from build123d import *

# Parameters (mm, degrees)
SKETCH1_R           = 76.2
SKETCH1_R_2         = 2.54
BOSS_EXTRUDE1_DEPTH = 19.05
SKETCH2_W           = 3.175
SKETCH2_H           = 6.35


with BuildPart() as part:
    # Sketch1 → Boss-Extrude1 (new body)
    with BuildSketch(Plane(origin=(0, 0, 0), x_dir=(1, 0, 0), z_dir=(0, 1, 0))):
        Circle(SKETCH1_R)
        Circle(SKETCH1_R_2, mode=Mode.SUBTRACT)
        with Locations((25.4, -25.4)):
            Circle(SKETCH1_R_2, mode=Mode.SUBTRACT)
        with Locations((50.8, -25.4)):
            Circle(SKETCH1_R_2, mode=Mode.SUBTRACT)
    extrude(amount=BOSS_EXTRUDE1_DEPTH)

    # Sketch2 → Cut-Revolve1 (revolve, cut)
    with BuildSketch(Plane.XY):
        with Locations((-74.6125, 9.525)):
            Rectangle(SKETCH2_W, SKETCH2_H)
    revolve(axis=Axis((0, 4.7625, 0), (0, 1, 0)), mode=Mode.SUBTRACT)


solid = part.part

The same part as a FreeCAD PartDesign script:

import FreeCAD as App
import Part
import Sketcher
from FreeCAD import Vector
Q = App.Units.Quantity


def add_polygon(sketch, points):
    """Adds a closed chain of lines whose ends are joined by coincident constraints."""
    first, n = sketch.GeometryCount, len(points)
    for a, b in zip(points, points[1:] + points[:1]):
        sketch.addGeometry(Part.LineSegment(App.Vector(*a, 0), App.Vector(*b, 0)), False)
    for i in range(n):
        sketch.addConstraint(Sketcher.Constraint("Coincident", first + i, 2, first + (i + 1) % n, 1))

doc = App.newDocument("Part")
params = doc.addObject("Spreadsheet::Sheet", "Params")
for row, (alias, value) in enumerate([
    ("sketch1_diameter", "6 in"),
    ("sketch1_diameter2", "0.2 in"),
    ("pad1_length", "0.75 in"),
    ("sketch2_height", "0.25 in"),
    ("sketch2_width", "0.125 in"),
    ("groove_angle", "360 deg"),
], start=1):
    params.set(f"A{row}", alias)
    params.set(f"B{row}", "=" + value)
    params.setAlias(f"B{row}", alias)

body = doc.addObject("PartDesign::Body", "Body")

sketch1 = doc.addObject("Sketcher::SketchObject", "Sketch")
body.addObject(sketch1)
sketch1.AttachmentSupport = (doc.XZ_Plane, [""])
sketch1.MapMode = "FlatFace"
sketch1.addGeometry([
    Part.Circle(Vector(0, 0, 0), Vector(0, 0, 1), 76.2),
    Part.Circle(Vector(25.4, 25.4, 0), Vector(0, 0, 1), 2.5),
    Part.Circle(Vector(50.8, 25.4, 0), Vector(0, 0, 1), 2.5),
    Part.Circle(Vector(0, 0, 0), Vector(0, 0, 1), 2.5),
], False)
sketch1.addConstraint([
    Sketcher.Constraint("Coincident", 0, 3, -1, 1),
    Sketcher.Constraint("Coincident", 3, 3, -1, 1),
    Sketcher.Constraint("Equal", 1, 2),
    Sketcher.Constraint("Equal", 2, 3),
    Sketcher.Constraint("Horizontal", 1, 3, 2, 3),
    Sketcher.Constraint("Diameter", 0, Q("6 in")),
    Sketcher.Constraint("Diameter", 1, Q("0.2 in")),
    Sketcher.Constraint("DistanceX", -1, 1, 1, 3, Q("1 in")),
    Sketcher.Constraint("DistanceY", -1, 1, 1, 3, Q("1 in")),
    Sketcher.Constraint("DistanceX", -1, 1, 2, 3, Q("2 in")),
])
sketch1.setExpression("Constraints[5]", "Params.sketch1_diameter")
sketch1.setExpression("Constraints[6]", "Params.sketch1_diameter2")
pad1 = doc.addObject("PartDesign::Pad", "Pad")
body.addObject(pad1)
pad1.Profile = sketch1
pad1.setExpression("Length", "Params.pad1_length")
pad1.Reversed = True

sketch2 = doc.addObject("Sketcher::SketchObject", "Sketch001")
body.addObject(sketch2)
sketch2.AttachmentSupport = (doc.XY_Plane, [""])
sketch2.MapMode = "FlatFace"
add_polygon(sketch2, [(-76.2, 12.7), (-76.2, 6.3), (-73, 6.3), (-73, 12.7)])
sketch2.addConstraint([
    Sketcher.Constraint("Vertical", 0),
    Sketcher.Constraint("Horizontal", 1),
    Sketcher.Constraint("Vertical", 2),
    Sketcher.Constraint("Horizontal", 3),
    Sketcher.Constraint("DistanceX", 0, 2, -1, 1, Q("3 in")),
    Sketcher.Constraint("DistanceY", 0, 2, 0, 1, Q("0.25 in")),
    Sketcher.Constraint("DistanceY", -1, 1, 2, 2, Q("0.5 in")),
    Sketcher.Constraint("DistanceX", 1, 1, 1, 2, Q("0.125 in")),
])
sketch2.setExpression("Constraints[9]", "Params.sketch2_height")
sketch2.setExpression("Constraints[11]", "Params.sketch2_width")
groove = doc.addObject("PartDesign::Groove", "Groove")
body.addObject(groove)
groove.Profile = sketch2
groove.ReferenceAxis = (sketch2, ["V_Axis"])
groove.setExpression("Angle", "Params.groove_angle")

doc.recompute()
